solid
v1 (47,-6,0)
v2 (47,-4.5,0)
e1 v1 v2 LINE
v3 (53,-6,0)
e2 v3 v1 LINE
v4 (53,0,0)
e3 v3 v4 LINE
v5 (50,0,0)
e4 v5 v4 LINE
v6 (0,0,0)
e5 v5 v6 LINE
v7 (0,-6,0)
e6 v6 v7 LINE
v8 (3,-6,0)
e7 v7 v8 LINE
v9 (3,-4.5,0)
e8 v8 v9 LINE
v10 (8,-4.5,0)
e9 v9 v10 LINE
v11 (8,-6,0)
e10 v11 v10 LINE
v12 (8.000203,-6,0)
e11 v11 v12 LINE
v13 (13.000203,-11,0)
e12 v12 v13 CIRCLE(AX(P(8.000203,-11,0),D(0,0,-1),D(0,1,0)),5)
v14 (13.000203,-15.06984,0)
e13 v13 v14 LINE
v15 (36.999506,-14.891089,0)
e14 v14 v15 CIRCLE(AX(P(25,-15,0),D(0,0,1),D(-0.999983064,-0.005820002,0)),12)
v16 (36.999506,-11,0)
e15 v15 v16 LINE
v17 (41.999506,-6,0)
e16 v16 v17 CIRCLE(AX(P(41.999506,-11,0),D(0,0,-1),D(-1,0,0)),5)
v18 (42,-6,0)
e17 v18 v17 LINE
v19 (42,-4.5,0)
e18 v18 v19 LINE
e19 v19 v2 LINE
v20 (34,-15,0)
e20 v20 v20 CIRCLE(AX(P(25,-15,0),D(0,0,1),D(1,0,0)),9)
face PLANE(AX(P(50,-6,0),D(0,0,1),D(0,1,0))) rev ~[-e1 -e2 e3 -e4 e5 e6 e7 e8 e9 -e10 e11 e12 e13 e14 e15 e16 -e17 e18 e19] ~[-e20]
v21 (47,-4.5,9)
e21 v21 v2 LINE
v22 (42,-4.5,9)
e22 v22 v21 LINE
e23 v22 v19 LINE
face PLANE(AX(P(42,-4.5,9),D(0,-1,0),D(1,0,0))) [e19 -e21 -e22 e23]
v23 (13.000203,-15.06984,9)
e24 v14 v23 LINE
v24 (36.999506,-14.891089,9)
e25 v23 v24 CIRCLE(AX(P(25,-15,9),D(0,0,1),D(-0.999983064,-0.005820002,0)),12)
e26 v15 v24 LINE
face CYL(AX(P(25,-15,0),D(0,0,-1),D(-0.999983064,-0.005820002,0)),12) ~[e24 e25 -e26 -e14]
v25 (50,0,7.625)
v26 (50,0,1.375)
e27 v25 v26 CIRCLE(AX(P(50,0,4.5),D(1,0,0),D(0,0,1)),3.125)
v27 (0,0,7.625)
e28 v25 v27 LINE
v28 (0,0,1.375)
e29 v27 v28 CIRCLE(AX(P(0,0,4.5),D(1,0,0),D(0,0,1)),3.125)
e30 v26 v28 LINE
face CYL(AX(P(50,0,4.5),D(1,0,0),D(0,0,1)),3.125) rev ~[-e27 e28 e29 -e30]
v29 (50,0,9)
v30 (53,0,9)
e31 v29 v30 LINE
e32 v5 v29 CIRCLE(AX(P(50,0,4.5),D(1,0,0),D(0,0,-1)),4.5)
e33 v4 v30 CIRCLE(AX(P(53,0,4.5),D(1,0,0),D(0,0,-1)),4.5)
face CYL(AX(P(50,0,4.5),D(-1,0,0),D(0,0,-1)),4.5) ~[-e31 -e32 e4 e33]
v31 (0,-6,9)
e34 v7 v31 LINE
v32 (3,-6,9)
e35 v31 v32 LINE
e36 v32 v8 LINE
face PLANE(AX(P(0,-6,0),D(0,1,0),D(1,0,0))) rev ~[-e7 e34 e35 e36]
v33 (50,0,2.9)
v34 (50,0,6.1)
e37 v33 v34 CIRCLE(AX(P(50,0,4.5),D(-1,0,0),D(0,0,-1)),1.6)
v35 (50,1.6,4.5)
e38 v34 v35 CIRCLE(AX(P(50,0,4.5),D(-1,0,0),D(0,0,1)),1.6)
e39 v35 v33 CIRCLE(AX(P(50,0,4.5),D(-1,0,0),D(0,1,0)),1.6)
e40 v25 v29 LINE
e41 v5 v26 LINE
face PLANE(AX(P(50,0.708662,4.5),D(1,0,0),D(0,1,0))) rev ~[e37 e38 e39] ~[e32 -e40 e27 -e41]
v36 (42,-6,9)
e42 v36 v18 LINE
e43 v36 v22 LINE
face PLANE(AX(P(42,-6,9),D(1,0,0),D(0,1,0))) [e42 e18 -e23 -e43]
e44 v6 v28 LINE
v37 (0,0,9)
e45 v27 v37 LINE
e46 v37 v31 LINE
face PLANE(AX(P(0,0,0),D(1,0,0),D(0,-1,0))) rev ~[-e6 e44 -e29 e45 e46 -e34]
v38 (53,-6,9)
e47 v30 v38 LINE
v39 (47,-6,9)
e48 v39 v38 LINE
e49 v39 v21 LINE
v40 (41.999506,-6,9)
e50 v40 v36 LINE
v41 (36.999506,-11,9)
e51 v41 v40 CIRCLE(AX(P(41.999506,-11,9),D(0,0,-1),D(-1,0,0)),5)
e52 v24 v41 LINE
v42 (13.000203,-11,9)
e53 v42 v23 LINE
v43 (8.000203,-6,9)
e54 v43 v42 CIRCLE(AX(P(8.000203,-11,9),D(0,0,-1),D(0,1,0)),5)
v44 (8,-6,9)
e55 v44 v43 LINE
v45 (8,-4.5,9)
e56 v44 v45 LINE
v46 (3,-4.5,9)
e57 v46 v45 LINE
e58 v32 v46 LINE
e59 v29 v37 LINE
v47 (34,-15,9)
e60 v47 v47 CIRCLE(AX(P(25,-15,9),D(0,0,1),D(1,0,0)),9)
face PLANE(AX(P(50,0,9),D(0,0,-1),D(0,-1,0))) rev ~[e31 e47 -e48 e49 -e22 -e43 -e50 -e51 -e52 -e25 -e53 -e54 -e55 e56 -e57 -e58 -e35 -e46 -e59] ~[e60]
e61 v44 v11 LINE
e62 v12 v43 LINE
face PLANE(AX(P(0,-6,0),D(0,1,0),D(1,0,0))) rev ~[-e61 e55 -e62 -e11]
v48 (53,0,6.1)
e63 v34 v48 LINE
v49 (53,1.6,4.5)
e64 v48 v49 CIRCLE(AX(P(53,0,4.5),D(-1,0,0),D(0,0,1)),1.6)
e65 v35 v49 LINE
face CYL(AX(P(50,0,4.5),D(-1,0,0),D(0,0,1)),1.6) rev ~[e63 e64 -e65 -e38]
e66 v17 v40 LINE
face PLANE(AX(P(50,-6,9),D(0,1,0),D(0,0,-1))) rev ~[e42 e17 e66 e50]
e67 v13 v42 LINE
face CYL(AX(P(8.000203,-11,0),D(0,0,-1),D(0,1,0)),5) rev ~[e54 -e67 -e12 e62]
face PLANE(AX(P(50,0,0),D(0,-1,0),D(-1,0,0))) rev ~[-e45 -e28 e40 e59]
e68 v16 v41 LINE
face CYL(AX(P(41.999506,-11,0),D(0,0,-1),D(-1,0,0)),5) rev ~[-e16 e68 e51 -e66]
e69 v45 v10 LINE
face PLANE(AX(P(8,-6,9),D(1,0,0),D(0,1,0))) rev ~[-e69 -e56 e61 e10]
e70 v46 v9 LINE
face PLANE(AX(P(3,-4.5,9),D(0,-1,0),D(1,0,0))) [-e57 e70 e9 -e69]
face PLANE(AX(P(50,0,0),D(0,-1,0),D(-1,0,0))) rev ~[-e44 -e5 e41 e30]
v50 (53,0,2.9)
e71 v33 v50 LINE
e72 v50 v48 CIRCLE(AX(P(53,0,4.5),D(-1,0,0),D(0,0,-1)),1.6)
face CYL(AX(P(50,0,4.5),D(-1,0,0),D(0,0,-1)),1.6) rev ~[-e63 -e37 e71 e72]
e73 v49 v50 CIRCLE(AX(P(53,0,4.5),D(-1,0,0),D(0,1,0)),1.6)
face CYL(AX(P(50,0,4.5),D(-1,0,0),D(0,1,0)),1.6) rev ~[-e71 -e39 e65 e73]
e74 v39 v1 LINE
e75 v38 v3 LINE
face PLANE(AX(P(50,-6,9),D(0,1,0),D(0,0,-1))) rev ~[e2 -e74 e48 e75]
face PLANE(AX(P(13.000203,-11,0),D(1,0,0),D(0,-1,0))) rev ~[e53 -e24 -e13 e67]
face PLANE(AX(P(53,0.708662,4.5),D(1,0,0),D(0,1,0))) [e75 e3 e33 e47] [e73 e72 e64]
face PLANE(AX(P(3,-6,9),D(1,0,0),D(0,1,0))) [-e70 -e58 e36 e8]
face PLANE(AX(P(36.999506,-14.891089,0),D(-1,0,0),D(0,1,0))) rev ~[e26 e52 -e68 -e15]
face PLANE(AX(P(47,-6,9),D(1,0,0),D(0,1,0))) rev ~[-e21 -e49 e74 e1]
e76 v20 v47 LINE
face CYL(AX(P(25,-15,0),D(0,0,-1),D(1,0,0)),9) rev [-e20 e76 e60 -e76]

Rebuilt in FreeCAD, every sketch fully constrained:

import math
import FreeCAD as App
import Part
import Sketcher

V = App.Vector
Q = App.Units.Quantity

doc = App.newDocument("Part")
body = doc.addObject("PartDesign::Body", "Body")

# Sketch on XY plane
sketch1 = doc.addObject("Sketcher::SketchObject", "Sketch")
body.addObject(sketch1)
sketch1.AttachmentSupport = (doc.XY_Plane, [""])
sketch1.MapMode = "FlatFace"
sketch1.addGeometry(Part.LineSegment(V(50, 0, 0), V(0, 0, 0)), False)
sketch1.addGeometry(Part.LineSegment(V(0, 0, 0), V(0, -6, 0)), False)
sketch1.addGeometry(Part.LineSegment(V(0, -6, 0), V(8, -6, 0)), False)
sketch1.addGeometry(Part.ArcOfCircle(Part.Circle(V(8, -11, 0), V(0, 0, 1), 5), math.radians(0), math.radians(90)), False)
sketch1.addGeometry(Part.LineSegment(V(13, -11, 0), V(13, -15.1, 0)), False)
sketch1.addGeometry(Part.ArcOfCircle(Part.Circle(V(25, -15, 0), V(0, 0, 1), 12), math.radians(-180), math.radians(1)), False)
sketch1.addGeometry(Part.LineSegment(V(37, -14.9, 0), V(37, -11, 0)), False)
sketch1.addGeometry(Part.ArcOfCircle(Part.Circle(V(42, -11, 0), V(0, 0, 1), 5), math.radians(90), math.radians(180)), False)
sketch1.addGeometry(Part.LineSegment(V(42, -6, 0), V(50, -6, 0)), False)
sketch1.addGeometry(Part.LineSegment(V(50, -6, 0), V(50, 0, 0)), False)
sketch1.addGeometry(Part.Circle(V(25, -15, 0), V(0, 0, 1), 9), False)
sketch1.addConstraint(Sketcher.Constraint("Coincident", 0, 2, 1, 1))
sketch1.addConstraint(Sketcher.Constraint("Coincident", 1, 2, 2, 1))
sketch1.addConstraint(Sketcher.Constraint("Tangent", 2, 2, 3, 2))
sketch1.addConstraint(Sketcher.Constraint("Tangent", 3, 1, 4, 1))
sketch1.addConstraint(Sketcher.Constraint("Coincident", 4, 2, 5, 1))
sketch1.addConstraint(Sketcher.Constraint("Coincident", 5, 2, 6, 1))
sketch1.addConstraint(Sketcher.Constraint("Tangent", 6, 2, 7, 2))
sketch1.addConstraint(Sketcher.Constraint("Tangent", 7, 1, 8, 1))
sketch1.addConstraint(Sketcher.Constraint("Coincident", 8, 2, 9, 1))
sketch1.addConstraint(Sketcher.Constraint("Coincident", 9, 2, 0, 1))
sketch1.addConstraint(Sketcher.Constraint("Horizontal", 0))
sketch1.addConstraint(Sketcher.Constraint("Vertical", 1))
sketch1.addConstraint(Sketcher.Constraint("Horizontal", 2))
sketch1.addConstraint(Sketcher.Constraint("Vertical", 4))
sketch1.addConstraint(Sketcher.Constraint("Vertical", 6))
sketch1.addConstraint(Sketcher.Constraint("Horizontal", 8))
sketch1.addConstraint(Sketcher.Constraint("Vertical", 9))
sketch1.addConstraint(Sketcher.Constraint("Coincident", 0, 2, -1, 1))
sketch1.addConstraint(Sketcher.Constraint("Coincident", 10, 3, 5, 3))
sketch1.addConstraint(Sketcher.Constraint("Equal", 3, 7))
sketch1.addConstraint(Sketcher.Constraint("Horizontal", 3, 3, 7, 3))
sketch1.addConstraint(Sketcher.Constraint("Diameter", 10, Q("18 mm")))
sketch1.addConstraint(Sketcher.Constraint("Radius", 3, Q("5 mm")))
sketch1.addConstraint(Sketcher.Constraint("Radius", 5, Q("12 mm")))
sketch1.addConstraint(Sketcher.Constraint("DistanceX", 0, 2, 0, 1, Q("50 mm")))
sketch1.addConstraint(Sketcher.Constraint("DistanceY", 1, 2, 1, 1, Q("6 mm")))
sketch1.addConstraint(Sketcher.Constraint("DistanceX", -1, 1, 5, 3, Q("25 mm")))
sketch1.addConstraint(Sketcher.Constraint("DistanceY", 5, 3, -1, 1, Q("15 mm")))
sketch1.addConstraint(Sketcher.Constraint("DistanceY", 4, 2, 4, 1, Q("4.06984 mm")))
sketch1.addConstraint(Sketcher.Constraint("DistanceY", 6, 1, 6, 2, Q("3.891089 mm")))
pad1 = doc.addObject("PartDesign::Pad", "Pad")
body.addObject(pad1)
pad1.Profile = sketch1
pad1.Length = 9

# Sketch on YZ plane
sketch2 = doc.addObject("Sketcher::SketchObject", "Sketch001")
body.addObject(sketch2)
sketch2.AttachmentSupport = (doc.YZ_Plane, [""])
sketch2.MapMode = "FlatFace"
sketch2.AttachmentOffset = App.Placement(V(0, 0, 50), App.Rotation())
sketch2.addGeometry(Part.LineSegment(V(0, 1.4, 0), V(0, 7.6, 0)), False)
sketch2.addGeometry(Part.ArcOfCircle(Part.Circle(V(0, 4.5, 0), V(0, 0, 1), 3.1), math.radians(90), math.radians(270)), False)
sketch2.addConstraint(Sketcher.Constraint("Coincident", 0, 1, 1, 2))
sketch2.addConstraint(Sketcher.Constraint("Coincident", 1, 1, 0, 2))
sketch2.addConstraint(Sketcher.Constraint("Vertical", 0))
sketch2.addConstraint(Sketcher.Constraint("PointOnObject", 1, 3, -2))
sketch2.addConstraint(Sketcher.Constraint("PointOnObject", 0, 1, -2))
sketch2.addConstraint(Sketcher.Constraint("Radius", 1, Q("3.125 mm")))
sketch2.addConstraint(Sketcher.Constraint("DistanceY", -1, 1, 1, 3, Q("4.5 mm")))
pocket1 = doc.addObject("PartDesign::Pocket", "Pocket")
body.addObject(pocket1)
pocket1.Profile = sketch2
pocket1.Length = 50

# Sketch on YZ plane
sketch3 = doc.addObject("Sketcher::SketchObject", "Sketch002")
body.addObject(sketch3)
sketch3.AttachmentSupport = (doc.YZ_Plane, [""])
sketch3.MapMode = "FlatFace"
sketch3.AttachmentOffset = App.Placement(V(0, 0, 50), App.Rotation())
sketch3.addGeometry(Part.ArcOfCircle(Part.Circle(V(0, 4.5, 0), V(0, 0, 1), 4.5), math.radians(-90), math.radians(90)), False)
sketch3.addGeometry(Part.LineSegment(V(0, 9, 0), V(-6, 9, 0)), False)
sketch3.addGeometry(Part.LineSegment(V(-6, 9, 0), V(-6, 0, 0)), False)
sketch3.addGeometry(Part.LineSegment(V(-6, 0, 0), V(0, 0, 0)), False)
sketch3.addGeometry(Part.ArcOfCircle(Part.Circle(V(0, 4.5, 0), V(0, 0, 1), 1.6), math.radians(90), math.radians(270)), False)
sketch3.addGeometry(Part.ArcOfCircle(Part.Circle(V(0, 4.5, 0), V(0, 0, 1), 1.6), math.radians(0), math.radians(90)), False)
sketch3.addGeometry(Part.ArcOfCircle(Part.Circle(V(0, 4.5, 0), V(0, 0, 1), 1.6), math.radians(-90), math.radians(0)), False)
sketch3.addConstraint(Sketcher.Constraint("Tangent", 0, 2, 1, 1))
sketch3.addConstraint(Sketcher.Constraint("Coincident", 1, 2, 2, 1))
sketch3.addConstraint(Sketcher.Constraint("Coincident", 2, 2, 3, 1))
sketch3.addConstraint(Sketcher.Constraint("Tangent", 3, 2, 0, 1))
sketch3.addConstraint(Sketcher.Constraint("Tangent", 4, 1, 5, 2))
sketch3.addConstraint(Sketcher.Constraint("Tangent", 5, 1, 6, 2))
sketch3.addConstraint(Sketcher.Constraint("Tangent", 6, 1, 4, 2))
sketch3.addConstraint(Sketcher.Constraint("Horizontal", 1))
sketch3.addConstraint(Sketcher.Constraint("Vertical", 2))
sketch3.addConstraint(Sketcher.Constraint("Horizontal", 3))
sketch3.addConstraint(Sketcher.Constraint("Coincident", 3, 2, -1, 1))
sketch3.addConstraint(Sketcher.Constraint("Coincident", 4, 3, 0, 3))
sketch3.addConstraint(Sketcher.Constraint("PointOnObject", 4, 1, -2))
sketch3.addConstraint(Sketcher.Constraint("PointOnObject", 6, 1, -2))
sketch3.addConstraint(Sketcher.Constraint("Horizontal", 6, 3, 5, 1))
sketch3.addConstraint(Sketcher.Constraint("Radius", 0, Q("4.5 mm")))
sketch3.addConstraint(Sketcher.Constraint("Radius", 4, Q("1.6 mm")))
sketch3.addConstraint(Sketcher.Constraint("DistanceX", 1, 2, 1, 1, Q("6 mm")))
pad2 = doc.addObject("PartDesign::Pad", "Pad001")
body.addObject(pad2)
pad2.Profile = sketch3
pad2.Length = 3

# Sketch on XY plane
sketch4 = doc.addObject("Sketcher::SketchObject", "Sketch003")
body.addObject(sketch4)
sketch4.AttachmentSupport = (doc.XY_Plane, [""])
sketch4.MapMode = "FlatFace"
sketch4.AttachmentOffset = App.Placement(V(0, 0, 9), App.Rotation())
sketch4.addGeometry(Part.LineSegment(V(3, -4.5, 0), V(3, -6, 0)), False)
sketch4.addGeometry(Part.LineSegment(V(3, -6, 0), V(8, -6, 0)), False)
sketch4.addGeometry(Part.LineSegment(V(8, -6, 0), V(8, -4.5, 0)), False)
sketch4.addGeometry(Part.LineSegment(V(8, -4.5, 0), V(3, -4.5, 0)), False)
sketch4.addGeometry(Part.LineSegment(V(42, -4.5, 0), V(42, -6, 0)), False)
sketch4.addGeometry(Part.LineSegment(V(42, -6, 0), V(47, -6, 0)), False)
sketch4.addGeometry(Part.LineSegment(V(47, -6, 0), V(47, -4.5, 0)), False)
sketch4.addGeometry(Part.LineSegment(V(47, -4.5, 0), V(42, -4.5, 0)), False)
sketch4.addConstraint(Sketcher.Constraint("Coincident", 0, 2, 1, 1))
sketch4.addConstraint(Sketcher.Constraint("Coincident", 1, 2, 2, 1))
sketch4.addConstraint(Sketcher.Constraint("Coincident", 2, 2, 3, 1))
sketch4.addConstraint(Sketcher.Constraint("Coincident", 3, 2, 0, 1))
sketch4.addConstraint(Sketcher.Constraint("Coincident", 4, 2, 5, 1))
sketch4.addConstraint(Sketcher.Constraint("Coincident", 5, 2, 6, 1))
sketch4.addConstraint(Sketcher.Constraint("Coincident", 6, 2, 7, 1))
sketch4.addConstraint(Sketcher.Constraint("Coincident", 7, 2, 4, 1))
sketch4.addConstraint(Sketcher.Constraint("Vertical", 0))
sketch4.addConstraint(Sketcher.Constraint("Horizontal", 1))
sketch4.addConstraint(Sketcher.Constraint("Vertical", 2))
sketch4.addConstraint(Sketcher.Constraint("Horizontal", 3))
sketch4.addConstraint(Sketcher.Constraint("Vertical", 4))
sketch4.addConstraint(Sketcher.Constraint("Horizontal", 5))
sketch4.addConstraint(Sketcher.Constraint("Vertical", 6))
sketch4.addConstraint(Sketcher.Constraint("Horizontal", 7))
sketch4.addConstraint(Sketcher.Constraint("Horizontal", 1, 2, 4, 2))
sketch4.addConstraint(Sketcher.Constraint("Horizontal", 3, 2, 6, 2))
sketch4.addConstraint(Sketcher.Constraint("Equal", 3, 5))
sketch4.addConstraint(Sketcher.Constraint("DistanceX", 1, 1, 1, 2, Q("5 mm")))
sketch4.addConstraint(Sketcher.Constraint("DistanceY", 0, 2, 0, 1, Q("1.5 mm")))
sketch4.addConstraint(Sketcher.Constraint("DistanceX", -1, 1, 0, 2, Q("3 mm")))
sketch4.addConstraint(Sketcher.Constraint("DistanceY", 0, 2, -1, 1, Q("6 mm")))
sketch4.addConstraint(Sketcher.Constraint("DistanceX", -1, 1, 4, 2, Q("42 mm")))
pocket2 = doc.addObject("PartDesign::Pocket", "Pocket001")
body.addObject(pocket2)
pocket2.Profile = sketch4
pocket2.Length = 25

doc.recompute()
